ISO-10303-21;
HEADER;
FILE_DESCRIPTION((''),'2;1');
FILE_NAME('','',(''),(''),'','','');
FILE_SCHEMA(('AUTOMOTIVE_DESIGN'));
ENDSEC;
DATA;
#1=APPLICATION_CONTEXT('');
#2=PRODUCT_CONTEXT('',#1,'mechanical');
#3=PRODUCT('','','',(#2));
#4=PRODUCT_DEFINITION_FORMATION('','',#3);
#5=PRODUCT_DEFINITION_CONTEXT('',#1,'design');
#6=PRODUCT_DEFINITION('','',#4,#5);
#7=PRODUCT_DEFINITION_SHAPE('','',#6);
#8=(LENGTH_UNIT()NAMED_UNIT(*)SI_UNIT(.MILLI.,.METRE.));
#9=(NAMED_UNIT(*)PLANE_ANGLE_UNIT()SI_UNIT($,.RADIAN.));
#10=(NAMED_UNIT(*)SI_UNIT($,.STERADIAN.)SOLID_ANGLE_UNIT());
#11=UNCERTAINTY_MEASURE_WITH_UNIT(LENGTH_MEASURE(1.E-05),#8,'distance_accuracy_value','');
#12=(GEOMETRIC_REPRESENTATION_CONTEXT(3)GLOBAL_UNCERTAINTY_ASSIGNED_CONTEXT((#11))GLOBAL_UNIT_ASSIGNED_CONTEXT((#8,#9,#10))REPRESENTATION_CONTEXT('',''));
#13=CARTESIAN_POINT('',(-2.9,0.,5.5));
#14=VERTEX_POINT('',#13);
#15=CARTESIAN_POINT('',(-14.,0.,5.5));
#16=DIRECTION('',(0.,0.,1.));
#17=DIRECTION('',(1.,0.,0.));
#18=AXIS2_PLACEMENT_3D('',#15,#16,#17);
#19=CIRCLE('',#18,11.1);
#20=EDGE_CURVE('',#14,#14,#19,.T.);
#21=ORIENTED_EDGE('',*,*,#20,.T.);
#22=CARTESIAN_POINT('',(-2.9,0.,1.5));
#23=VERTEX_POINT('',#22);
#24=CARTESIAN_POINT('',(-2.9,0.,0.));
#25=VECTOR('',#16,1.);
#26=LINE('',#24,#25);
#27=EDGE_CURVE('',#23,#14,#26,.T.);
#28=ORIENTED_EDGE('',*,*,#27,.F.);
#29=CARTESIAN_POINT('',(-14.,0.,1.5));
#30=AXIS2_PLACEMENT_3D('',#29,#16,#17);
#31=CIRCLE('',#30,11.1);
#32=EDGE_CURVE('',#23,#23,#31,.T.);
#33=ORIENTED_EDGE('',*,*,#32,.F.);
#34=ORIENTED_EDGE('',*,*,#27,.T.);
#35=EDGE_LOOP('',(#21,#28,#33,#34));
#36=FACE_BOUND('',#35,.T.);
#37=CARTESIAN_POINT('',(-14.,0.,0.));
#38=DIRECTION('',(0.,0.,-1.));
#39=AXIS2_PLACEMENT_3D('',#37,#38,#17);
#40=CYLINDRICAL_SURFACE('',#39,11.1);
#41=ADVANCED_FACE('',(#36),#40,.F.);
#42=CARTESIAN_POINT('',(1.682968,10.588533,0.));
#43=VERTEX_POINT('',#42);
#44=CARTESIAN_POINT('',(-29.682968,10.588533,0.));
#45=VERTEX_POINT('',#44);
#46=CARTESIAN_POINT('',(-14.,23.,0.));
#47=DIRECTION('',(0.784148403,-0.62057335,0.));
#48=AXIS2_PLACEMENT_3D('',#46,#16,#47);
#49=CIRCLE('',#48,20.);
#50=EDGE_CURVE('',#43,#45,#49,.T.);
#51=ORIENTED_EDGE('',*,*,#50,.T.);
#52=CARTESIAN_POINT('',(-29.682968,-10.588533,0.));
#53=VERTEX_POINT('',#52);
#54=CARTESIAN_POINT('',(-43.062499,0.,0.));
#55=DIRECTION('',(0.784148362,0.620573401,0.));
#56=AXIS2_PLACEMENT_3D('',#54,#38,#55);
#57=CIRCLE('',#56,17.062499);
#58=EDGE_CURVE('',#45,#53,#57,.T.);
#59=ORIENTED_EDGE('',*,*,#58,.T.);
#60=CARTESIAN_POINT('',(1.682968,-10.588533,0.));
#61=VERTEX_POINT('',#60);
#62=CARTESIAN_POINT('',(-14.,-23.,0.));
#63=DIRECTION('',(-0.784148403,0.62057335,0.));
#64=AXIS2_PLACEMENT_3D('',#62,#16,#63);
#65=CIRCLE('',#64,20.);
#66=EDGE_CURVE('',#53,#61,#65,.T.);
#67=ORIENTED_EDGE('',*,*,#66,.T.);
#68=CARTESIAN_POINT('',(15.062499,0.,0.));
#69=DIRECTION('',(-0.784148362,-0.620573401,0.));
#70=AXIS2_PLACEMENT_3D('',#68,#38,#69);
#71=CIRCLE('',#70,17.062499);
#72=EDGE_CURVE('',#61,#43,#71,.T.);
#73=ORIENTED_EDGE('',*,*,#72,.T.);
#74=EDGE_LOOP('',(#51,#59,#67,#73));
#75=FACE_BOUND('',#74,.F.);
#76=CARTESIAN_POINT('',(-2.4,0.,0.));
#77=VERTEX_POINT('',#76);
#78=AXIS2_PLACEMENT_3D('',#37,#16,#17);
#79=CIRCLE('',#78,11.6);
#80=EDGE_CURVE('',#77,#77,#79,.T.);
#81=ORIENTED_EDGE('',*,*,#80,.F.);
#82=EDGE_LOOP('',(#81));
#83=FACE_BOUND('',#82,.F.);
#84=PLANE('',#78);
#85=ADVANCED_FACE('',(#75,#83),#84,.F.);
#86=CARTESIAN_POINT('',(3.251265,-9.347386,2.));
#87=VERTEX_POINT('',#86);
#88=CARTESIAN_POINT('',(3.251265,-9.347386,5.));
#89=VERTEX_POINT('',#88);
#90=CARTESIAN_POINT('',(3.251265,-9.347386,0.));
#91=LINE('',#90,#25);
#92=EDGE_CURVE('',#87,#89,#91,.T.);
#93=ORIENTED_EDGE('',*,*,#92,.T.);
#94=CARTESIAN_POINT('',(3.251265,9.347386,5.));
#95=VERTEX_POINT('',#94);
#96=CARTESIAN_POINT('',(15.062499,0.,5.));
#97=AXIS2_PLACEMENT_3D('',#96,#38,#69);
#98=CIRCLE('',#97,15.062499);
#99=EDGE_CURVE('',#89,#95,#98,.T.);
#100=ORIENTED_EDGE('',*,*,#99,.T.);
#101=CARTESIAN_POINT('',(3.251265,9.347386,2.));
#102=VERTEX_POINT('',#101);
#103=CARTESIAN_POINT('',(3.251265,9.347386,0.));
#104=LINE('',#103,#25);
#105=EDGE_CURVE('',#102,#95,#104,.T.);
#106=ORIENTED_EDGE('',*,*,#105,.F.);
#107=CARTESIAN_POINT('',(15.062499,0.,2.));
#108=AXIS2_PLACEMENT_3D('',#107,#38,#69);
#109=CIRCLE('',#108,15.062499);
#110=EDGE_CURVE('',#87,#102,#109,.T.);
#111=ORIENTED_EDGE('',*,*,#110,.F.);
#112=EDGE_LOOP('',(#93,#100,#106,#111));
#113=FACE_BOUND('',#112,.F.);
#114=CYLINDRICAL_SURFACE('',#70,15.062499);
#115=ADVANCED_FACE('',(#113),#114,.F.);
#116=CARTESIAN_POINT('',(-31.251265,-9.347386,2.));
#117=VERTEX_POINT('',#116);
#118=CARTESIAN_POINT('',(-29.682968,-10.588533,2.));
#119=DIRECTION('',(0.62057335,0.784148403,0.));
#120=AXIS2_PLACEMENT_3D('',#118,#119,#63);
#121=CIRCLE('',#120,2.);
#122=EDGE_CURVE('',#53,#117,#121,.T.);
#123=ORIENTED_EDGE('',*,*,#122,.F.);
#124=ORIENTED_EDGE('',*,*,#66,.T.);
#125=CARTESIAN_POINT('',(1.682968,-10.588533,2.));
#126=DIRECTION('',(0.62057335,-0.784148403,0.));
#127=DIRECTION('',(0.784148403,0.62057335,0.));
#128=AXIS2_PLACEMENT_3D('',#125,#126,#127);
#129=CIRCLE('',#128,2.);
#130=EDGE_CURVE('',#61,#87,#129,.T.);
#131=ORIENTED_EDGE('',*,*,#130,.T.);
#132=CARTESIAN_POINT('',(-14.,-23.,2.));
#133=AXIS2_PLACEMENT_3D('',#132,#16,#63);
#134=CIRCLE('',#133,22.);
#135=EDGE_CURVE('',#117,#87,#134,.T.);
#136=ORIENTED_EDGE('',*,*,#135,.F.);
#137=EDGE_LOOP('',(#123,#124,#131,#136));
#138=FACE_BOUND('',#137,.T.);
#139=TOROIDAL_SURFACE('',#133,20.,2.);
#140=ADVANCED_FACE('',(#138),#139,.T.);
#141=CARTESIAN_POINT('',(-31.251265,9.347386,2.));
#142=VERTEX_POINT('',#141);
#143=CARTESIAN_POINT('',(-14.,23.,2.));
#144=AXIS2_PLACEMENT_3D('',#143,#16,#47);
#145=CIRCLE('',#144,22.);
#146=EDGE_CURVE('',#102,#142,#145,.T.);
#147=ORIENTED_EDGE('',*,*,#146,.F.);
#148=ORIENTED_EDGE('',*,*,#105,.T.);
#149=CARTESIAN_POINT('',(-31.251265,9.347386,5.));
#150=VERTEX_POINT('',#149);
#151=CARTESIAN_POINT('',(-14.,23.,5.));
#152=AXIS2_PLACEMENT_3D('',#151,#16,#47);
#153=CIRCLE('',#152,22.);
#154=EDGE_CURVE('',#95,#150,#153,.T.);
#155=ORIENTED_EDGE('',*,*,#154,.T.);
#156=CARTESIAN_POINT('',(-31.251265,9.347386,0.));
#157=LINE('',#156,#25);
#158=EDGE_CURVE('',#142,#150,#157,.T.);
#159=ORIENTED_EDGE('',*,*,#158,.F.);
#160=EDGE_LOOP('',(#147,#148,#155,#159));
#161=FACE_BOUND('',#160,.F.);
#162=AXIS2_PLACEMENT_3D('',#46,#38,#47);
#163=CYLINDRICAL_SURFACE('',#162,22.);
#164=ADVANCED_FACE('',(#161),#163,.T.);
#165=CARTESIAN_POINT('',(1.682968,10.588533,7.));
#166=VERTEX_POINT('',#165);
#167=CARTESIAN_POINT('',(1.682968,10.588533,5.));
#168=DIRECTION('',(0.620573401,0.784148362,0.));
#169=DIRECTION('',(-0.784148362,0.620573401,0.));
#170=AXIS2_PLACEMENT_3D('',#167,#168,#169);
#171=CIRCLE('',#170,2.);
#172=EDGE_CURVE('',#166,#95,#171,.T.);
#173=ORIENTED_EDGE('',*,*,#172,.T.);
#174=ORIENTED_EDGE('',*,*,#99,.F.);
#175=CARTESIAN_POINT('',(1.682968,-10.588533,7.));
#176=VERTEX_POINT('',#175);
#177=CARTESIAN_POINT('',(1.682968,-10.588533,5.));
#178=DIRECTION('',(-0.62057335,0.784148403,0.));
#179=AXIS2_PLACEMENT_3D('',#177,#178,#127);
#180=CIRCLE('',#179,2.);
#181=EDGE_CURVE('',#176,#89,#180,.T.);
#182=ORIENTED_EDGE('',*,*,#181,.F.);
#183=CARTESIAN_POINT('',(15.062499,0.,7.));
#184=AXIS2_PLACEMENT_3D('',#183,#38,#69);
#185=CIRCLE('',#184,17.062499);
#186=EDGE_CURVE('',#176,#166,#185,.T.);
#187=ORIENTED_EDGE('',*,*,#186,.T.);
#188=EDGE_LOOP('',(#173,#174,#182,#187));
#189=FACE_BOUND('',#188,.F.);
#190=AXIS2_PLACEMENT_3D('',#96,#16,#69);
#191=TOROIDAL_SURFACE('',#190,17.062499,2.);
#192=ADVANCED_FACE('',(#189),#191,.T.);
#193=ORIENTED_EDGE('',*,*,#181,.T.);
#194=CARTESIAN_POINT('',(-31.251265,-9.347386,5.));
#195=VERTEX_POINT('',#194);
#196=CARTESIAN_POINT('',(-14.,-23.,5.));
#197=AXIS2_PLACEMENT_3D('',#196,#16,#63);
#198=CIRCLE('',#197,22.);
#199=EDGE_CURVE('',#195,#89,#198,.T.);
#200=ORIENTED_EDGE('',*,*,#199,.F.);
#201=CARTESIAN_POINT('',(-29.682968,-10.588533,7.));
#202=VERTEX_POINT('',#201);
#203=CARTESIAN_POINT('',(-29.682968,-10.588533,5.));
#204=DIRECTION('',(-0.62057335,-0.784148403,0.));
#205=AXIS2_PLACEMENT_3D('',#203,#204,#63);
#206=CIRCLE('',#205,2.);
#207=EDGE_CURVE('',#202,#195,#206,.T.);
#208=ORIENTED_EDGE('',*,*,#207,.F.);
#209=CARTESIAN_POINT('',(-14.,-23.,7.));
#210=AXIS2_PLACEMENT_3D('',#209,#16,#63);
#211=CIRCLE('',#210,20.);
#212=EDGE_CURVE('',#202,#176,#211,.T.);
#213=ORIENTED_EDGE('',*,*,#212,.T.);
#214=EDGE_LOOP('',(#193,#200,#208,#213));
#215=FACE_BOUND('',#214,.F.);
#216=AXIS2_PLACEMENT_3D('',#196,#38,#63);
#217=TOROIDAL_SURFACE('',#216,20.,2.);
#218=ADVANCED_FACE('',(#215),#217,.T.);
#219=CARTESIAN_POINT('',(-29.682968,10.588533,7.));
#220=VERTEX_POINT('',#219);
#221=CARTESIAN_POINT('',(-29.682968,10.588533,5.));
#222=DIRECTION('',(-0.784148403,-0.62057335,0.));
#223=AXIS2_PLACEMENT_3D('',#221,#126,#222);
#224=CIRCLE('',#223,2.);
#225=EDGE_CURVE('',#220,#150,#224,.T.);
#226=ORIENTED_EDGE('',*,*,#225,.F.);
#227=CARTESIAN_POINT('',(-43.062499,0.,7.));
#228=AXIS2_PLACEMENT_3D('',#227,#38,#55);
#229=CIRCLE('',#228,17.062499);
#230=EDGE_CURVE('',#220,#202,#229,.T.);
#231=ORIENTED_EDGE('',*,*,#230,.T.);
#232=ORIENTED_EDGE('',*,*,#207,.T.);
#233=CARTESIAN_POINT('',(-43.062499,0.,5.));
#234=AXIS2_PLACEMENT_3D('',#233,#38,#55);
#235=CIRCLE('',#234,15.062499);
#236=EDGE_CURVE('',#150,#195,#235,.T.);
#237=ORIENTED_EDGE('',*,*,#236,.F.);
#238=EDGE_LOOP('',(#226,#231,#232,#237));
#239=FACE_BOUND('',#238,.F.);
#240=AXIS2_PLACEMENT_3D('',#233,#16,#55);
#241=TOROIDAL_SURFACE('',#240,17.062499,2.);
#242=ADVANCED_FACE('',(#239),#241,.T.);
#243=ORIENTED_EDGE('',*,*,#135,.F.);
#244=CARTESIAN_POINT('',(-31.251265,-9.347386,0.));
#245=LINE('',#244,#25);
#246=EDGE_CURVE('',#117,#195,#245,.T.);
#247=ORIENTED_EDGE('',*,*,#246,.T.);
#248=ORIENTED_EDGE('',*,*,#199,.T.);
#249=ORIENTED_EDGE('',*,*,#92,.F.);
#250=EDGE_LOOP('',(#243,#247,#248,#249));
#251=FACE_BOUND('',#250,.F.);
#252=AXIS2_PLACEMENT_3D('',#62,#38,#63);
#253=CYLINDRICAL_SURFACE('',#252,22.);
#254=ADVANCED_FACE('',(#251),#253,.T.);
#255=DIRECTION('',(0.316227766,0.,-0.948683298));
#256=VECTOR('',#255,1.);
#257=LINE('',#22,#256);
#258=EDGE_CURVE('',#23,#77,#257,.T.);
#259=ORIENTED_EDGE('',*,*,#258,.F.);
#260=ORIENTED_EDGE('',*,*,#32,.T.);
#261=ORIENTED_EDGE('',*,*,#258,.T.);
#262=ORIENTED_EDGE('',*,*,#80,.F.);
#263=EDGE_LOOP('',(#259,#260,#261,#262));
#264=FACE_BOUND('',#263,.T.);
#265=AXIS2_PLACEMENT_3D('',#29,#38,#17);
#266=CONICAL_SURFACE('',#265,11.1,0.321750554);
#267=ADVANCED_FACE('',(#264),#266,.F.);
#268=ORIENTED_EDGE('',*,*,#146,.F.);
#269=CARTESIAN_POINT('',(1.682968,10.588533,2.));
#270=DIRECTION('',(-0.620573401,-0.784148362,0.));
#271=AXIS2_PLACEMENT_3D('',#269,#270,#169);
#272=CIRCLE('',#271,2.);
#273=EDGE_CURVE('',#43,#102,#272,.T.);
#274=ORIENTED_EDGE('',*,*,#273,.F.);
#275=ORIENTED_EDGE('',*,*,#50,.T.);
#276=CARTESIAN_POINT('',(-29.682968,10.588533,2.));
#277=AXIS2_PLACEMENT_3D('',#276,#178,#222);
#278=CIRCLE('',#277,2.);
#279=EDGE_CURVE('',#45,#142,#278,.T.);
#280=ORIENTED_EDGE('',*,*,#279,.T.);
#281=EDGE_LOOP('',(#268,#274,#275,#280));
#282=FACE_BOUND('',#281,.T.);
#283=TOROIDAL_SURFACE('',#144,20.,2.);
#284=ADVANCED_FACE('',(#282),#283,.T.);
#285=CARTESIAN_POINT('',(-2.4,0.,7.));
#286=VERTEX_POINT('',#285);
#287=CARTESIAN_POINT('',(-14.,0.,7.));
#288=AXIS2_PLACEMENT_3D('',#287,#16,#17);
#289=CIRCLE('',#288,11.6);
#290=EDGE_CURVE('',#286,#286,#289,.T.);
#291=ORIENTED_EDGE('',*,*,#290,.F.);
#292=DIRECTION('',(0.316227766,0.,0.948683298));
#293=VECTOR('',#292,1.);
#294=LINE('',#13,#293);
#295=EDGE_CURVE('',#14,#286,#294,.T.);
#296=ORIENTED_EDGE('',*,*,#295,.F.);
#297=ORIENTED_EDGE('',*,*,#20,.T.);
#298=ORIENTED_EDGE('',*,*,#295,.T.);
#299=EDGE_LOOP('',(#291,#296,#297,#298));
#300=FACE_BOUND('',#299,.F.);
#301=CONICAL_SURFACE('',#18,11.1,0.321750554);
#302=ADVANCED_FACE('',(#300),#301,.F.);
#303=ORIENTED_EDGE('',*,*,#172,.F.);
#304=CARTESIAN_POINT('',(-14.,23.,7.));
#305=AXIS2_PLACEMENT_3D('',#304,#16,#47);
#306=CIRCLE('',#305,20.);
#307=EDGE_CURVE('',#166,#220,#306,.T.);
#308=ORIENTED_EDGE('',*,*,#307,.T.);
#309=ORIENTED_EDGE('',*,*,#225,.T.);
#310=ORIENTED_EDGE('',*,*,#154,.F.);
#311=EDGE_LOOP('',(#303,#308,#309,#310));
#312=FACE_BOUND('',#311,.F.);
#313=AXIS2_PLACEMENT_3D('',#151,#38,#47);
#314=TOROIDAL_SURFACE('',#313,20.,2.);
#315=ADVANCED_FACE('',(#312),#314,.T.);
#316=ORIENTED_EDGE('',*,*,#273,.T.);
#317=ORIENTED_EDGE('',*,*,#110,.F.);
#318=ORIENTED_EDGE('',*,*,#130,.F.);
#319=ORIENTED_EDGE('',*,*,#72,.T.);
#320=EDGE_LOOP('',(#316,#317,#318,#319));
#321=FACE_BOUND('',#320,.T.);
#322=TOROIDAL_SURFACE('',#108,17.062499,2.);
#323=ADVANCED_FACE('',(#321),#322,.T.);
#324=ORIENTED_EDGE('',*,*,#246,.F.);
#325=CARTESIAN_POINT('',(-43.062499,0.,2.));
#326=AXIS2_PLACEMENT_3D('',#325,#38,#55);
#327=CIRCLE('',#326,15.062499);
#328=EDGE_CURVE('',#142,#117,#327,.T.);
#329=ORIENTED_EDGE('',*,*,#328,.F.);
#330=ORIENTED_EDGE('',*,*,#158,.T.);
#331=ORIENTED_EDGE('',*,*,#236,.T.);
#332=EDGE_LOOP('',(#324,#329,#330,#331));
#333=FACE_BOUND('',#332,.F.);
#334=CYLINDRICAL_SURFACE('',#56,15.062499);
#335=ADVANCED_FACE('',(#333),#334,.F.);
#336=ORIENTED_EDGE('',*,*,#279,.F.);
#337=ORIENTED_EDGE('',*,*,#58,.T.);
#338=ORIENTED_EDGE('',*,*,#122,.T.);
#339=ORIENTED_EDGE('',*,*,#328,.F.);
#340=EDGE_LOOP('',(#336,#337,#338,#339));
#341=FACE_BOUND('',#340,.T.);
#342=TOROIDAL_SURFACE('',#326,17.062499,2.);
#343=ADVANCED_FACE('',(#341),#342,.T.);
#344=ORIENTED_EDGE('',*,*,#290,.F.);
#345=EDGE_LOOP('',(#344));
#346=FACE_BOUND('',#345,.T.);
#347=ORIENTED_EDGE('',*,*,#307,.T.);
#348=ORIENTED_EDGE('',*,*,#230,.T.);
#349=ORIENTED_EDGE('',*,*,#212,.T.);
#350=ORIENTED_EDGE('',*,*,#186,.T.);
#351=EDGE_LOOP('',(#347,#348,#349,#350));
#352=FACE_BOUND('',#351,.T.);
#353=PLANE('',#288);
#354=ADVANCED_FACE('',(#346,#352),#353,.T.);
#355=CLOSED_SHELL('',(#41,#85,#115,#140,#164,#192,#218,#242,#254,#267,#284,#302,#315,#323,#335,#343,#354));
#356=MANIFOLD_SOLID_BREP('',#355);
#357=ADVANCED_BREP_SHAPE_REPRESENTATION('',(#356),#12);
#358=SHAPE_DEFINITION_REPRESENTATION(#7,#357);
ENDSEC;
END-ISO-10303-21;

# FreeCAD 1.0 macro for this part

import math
import FreeCAD as App
import Part
import Sketcher

V = App.Vector
Q = App.Units.Quantity


def edges_at(feature, points):
    """Names of the edges that pass closest to the given points."""
    edges = feature.Shape.Edges
    near = lambda p: min(range(len(edges)), key=lambda i: edges[i].distToShape(Part.Vertex(*p))[0])
    return sorted({f"Edge{near(p) + 1}" for p in points})

doc = App.newDocument("Part")
body = doc.addObject("PartDesign::Body", "Body")

sketch1 = body.newObject("Sketcher::SketchObject", "Sketch")
sketch1.AttachmentSupport = (doc.getObject("XY_Plane"), [""])
sketch1.MapMode = "FlatFace"
sketch1.addGeometry([
    Part.ArcOfCircle(Part.Circle(V(-43, 0, 0), V(0, 0, 1), 15), math.radians(-38), math.radians(38)),
    Part.ArcOfCircle(Part.Circle(V(-14, -23, 0), V(0, 0, 1), 22), math.radians(142), math.radians(398)),
    Part.ArcOfCircle(Part.Circle(V(15, 0, 0), V(0, 0, 1), 15), math.radians(142), math.radians(218)),
    Part.ArcOfCircle(Part.Circle(V(-14, 23, 0), V(0, 0, 1), 22), math.radians(-38), math.radians(218)),
    Part.Circle(V(-14, 0, 0), V(0, 0, 1), 11),
], False)
sketch1.addConstraint([
    Sketcher.Constraint("Tangent", 0, 1, 1, 1),
    Sketcher.Constraint("Tangent", 1, 2, 2, 2),
    Sketcher.Constraint("Tangent", 2, 1, 3, 1),
    Sketcher.Constraint("Tangent", 3, 2, 0, 2),
    Sketcher.Constraint("Equal", 0, 2),
    Sketcher.Constraint("Equal", 1, 3),
    Sketcher.Constraint("Symmetric", 1, 3, 3, 3, -1),
    Sketcher.Constraint("PointOnObject", 4, 3, -1),
    Sketcher.Constraint("Vertical", 3, 3, 4, 3),
    Sketcher.Constraint("Radius", 1, Q("22 mm")),
    Sketcher.Constraint("Diameter", 4, Q("22.2 mm")),
    Sketcher.Constraint("DistanceX", 1, 3, -1, 1, Q("14 mm")),
    Sketcher.Constraint("DistanceY", 1, 3, -1, 1, Q("23 mm")),
    Sketcher.Constraint("Radius", 0, Q("15.062499 mm")),
])
pad1 = body.newObject("PartDesign::Pad", "Pad")
pad1.Profile = sketch1
pad1.Length = 7
doc.recompute()

chamfer = body.newObject("PartDesign::Chamfer", "Chamfer")
chamfer.Base = (pad1, edges_at(pad1, [(-25.1, 0, 7), (-25.1, 0, 0)]))
chamfer.ChamferType = "Two distances"
chamfer.Size = 1.5
chamfer.Size2 = 0.5
doc.recompute()

fillet = body.newObject("PartDesign::Fillet", "Fillet")
fillet.Base = (chamfer, edges_at(chamfer, [(-14, -45, 7), (-14, -45, 0)]))
fillet.Radius = 2

doc.recompute()
